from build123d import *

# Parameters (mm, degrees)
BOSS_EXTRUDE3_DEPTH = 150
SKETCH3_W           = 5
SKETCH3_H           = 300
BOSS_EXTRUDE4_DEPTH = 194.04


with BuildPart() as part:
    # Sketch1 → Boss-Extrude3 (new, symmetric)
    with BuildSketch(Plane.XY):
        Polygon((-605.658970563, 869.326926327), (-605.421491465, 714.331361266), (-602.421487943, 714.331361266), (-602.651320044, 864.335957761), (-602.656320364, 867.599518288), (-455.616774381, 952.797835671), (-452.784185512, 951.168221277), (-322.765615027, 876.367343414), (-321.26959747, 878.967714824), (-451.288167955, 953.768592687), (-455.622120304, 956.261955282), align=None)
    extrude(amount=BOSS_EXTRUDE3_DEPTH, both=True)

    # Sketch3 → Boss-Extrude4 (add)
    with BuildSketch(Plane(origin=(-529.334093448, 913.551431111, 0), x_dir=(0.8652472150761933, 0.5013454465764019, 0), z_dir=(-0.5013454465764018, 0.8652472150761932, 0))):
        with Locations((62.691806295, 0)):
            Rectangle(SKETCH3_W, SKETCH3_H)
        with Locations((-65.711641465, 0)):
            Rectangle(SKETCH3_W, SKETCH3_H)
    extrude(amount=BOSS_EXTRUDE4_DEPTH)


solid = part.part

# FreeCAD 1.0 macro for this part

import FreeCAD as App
import Part
import Sketcher
from FreeCAD import Vector
Q = App.Units.Quantity


def add_polygon(sketch, points):
    """Adds a closed chain of lines whose ends are joined by coincident constraints."""
    first, n = sketch.GeometryCount, len(points)
    for a, b in zip(points, points[1:] + points[:1]):
        sketch.addGeometry(Part.LineSegment(App.Vector(*a, 0), App.Vector(*b, 0)), False)
    for i in range(n):
        sketch.addConstraint(Sketcher.Constraint("Coincident", first + i, 2, first + (i + 1) % n, 1))

doc = App.newDocument("Part")
params = doc.addObject("Spreadsheet::Sheet", "Params")
for row, (alias, value) in enumerate([
    ("sketch1_length", "150 mm"),
    ("sketch1_length2", "3 mm"),
    ("sketch1_length3", "5 mm"),
    ("pad1_length", "300 mm"),
    ("sketch2_width", "5 mm"),
    ("sketch2_height", "300 mm"),
    ("pad2_length", "194.04 mm"),
], start=1):
    params.set(f"A{row}", alias)
    params.set(f"B{row}", "=" + value)
    params.setAlias(f"B{row}", alias)

body = doc.addObject("PartDesign::Body", "Body")

sketch1 = body.newObject("Sketcher::SketchObject", "Sketch")
sketch1.AttachmentSupport = (doc.getObject("XY_Plane"), [""])
sketch1.MapMode = "FlatFace"
add_polygon(sketch1, [(-605.658971, 869.326926), (-605.421491, 714.331361), (-602.421488, 714.331361), (-602.65132, 864.335958), (-602.65632, 867.599518), (-455.616774, 952.797836), (-452.784186, 951.168221), (-322.765615, 876.367343), (-321.269597, 878.967715), (-451.288168, 953.768593), (-455.62212, 956.261955)])
sketch1.addConstraint([
    Sketcher.Constraint("Horizontal", 1),
    Sketcher.Constraint("Parallel", 0, 2),
    Sketcher.Constraint("Parallel", 2, 3),
    Sketcher.Constraint("Parallel", 5, 6),
    Sketcher.Constraint("Perpendicular", 6, 7),
    Sketcher.Constraint("Perpendicular", 7, 8),
    Sketcher.Constraint("Parallel", 8, 9),
    Sketcher.Constraint("Parallel", 4, 10),
    Sketcher.Constraint("Equal", 6, 8),
    Sketcher.Constraint("Distance", 6, Q("150 mm")),
    Sketcher.Constraint("Distance", 7, Q("3 mm")),
    Sketcher.Constraint("Distance", 9, Q("5 mm")),
    Sketcher.Constraint("DistanceX", 3, 2, 2, 2, Q("0.005 mm")),
    Sketcher.Constraint("DistanceX", 1, 1, 1, 2, Q("3.000004 mm")),
    Sketcher.Constraint("DistanceX", 0, 2, -1, 1, Q("605.421491 mm")),
    Sketcher.Constraint("DistanceY", -1, 1, 0, 2, Q("714.331361 mm")),
    Sketcher.Constraint("DistanceX", 2, 2, -1, 1, Q("602.65132 mm")),
    Sketcher.Constraint("DistanceY", -1, 1, 3, 2, Q("867.599518 mm")),
    Sketcher.Constraint("DistanceY", -1, 1, 5, 2, Q("951.168221 mm")),
    Sketcher.Constraint("DistanceX", 9, 2, -1, 1, Q("455.62212 mm")),
    Sketcher.Constraint("DistanceX", 4, 2, 5, 2, Q("2.832589 mm")),
    Sketcher.Constraint("DistanceX", 5, 2, 6, 2, Q("130.01857 mm")),
])
sketch1.setExpression("Constraints[20]", "Params.sketch1_length")
sketch1.setExpression("Constraints[21]", "Params.sketch1_length2")
sketch1.setExpression("Constraints[22]", "Params.sketch1_length3")
pad1 = body.newObject("PartDesign::Pad", "Pad")
pad1.Profile = sketch1
pad1.setExpression("Length", "Params.pad1_length")
pad1.Midplane = True

sketch2 = body.newObject("Sketcher::SketchObject", "Sketch001")
sketch2.Placement = App.Placement(Vector(-529.334093, 913.551431, 0), App.Rotation(Vector(0.865247215, 0.501345447, 0), Vector(0, 0, -1), Vector(-0.501345447, 0.865247215, 0), "ZXY"))
add_polygon(sketch2, [(60.191806, 150), (60.191806, -150), (65.191806, -150), (65.191806, 150)])
add_polygon(sketch2, [(-68.211641, 150), (-68.211641, -150), (-63.211641, -150), (-63.211641, 150)])
sketch2.addConstraint([
    Sketcher.Constraint("Vertical", 0),
    Sketcher.Constraint("Horizontal", 1),
    Sketcher.Constraint("Vertical", 2),
    Sketcher.Constraint("Horizontal", 3),
    Sketcher.Constraint("Vertical", 4),
    Sketcher.Constraint("Horizontal", 5),
    Sketcher.Constraint("Vertical", 6),
    Sketcher.Constraint("Horizontal", 7),
    Sketcher.Constraint("Horizontal", 1, 2, 4, 2),
    Sketcher.Constraint("Horizontal", 3, 2, 6, 2),
    Sketcher.Constraint("Equal", 3, 5),
    Sketcher.Constraint("DistanceX", 1, 1, 1, 2, Q("5 mm")),
    Sketcher.Constraint("DistanceY", 0, 2, 0, 1, Q("300 mm")),
    Sketcher.Constraint("DistanceY", 0, 2, -1, 1, Q("150 mm")),
    Sketcher.Constraint("DistanceX", 4, 2, -1, 1, Q("68.211641 mm")),
    Sketcher.Constraint("DistanceX", -1, 1, 0, 2, Q("60.191806 mm")),
])
sketch2.setExpression("Constraints[19]", "Params.sketch2_width")
sketch2.setExpression("Constraints[20]", "Params.sketch2_height")
pad2 = body.newObject("PartDesign::Pad", "Pad001")
pad2.Profile = sketch2
pad2.setExpression("Length", "Params.pad2_length")

doc.recompute()
